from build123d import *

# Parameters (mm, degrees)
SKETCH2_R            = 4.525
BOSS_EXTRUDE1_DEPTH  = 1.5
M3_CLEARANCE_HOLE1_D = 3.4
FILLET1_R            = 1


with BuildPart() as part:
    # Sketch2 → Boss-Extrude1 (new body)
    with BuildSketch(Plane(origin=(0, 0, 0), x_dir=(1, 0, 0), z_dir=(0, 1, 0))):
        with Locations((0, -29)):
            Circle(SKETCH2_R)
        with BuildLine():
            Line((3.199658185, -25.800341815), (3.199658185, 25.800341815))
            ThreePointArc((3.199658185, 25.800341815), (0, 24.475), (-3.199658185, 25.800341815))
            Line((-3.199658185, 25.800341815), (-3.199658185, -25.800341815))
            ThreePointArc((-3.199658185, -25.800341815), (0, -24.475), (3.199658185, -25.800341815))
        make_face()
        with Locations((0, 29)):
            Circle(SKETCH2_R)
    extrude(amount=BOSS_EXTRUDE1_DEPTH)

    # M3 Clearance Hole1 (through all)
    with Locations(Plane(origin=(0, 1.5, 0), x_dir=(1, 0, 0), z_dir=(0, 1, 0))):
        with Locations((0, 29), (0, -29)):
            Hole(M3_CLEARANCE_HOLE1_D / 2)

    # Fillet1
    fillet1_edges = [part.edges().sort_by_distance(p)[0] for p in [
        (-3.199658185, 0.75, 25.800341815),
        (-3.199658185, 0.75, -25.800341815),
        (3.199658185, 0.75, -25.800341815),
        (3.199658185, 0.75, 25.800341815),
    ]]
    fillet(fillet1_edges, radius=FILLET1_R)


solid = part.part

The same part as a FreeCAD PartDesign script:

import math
import FreeCAD as App
import Part
import Sketcher
Q = App.Units.Quantity


def edges_at(feature, points):
    """Names of the edges that pass closest to the given points."""
    edges = feature.Shape.Edges
    near = lambda p: min(range(len(edges)), key=lambda i: edges[i].distToShape(Part.Vertex(*p))[0])
    return sorted({f"Edge{near(p) + 1}" for p in points})

doc = App.newDocument("Part")
body = doc.addObject("PartDesign::Body", "Body")

# Sketch on XZ plane
sketch1 = body.newObject("Sketcher::SketchObject", "Sketch")
sketch1.AttachmentSupport = (doc.getObject("XZ_Plane"), [""])
sketch1.MapMode = "FlatFace"
sketch1.addGeometry([
    Part.LineSegment(App.Vector(3.2, 25.8, 0), App.Vector(3.2, -25.8, 0)),
    Part.ArcOfCircle(Part.Circle(App.Vector(0, -29, 0), App.Vector(0, 0, 1), 4.5), math.radians(135), math.radians(405)),
    Part.LineSegment(App.Vector(-3.2, -25.8, 0), App.Vector(-3.2, 25.8, 0)),
    Part.ArcOfCircle(Part.Circle(App.Vector(0, 29, 0), App.Vector(0, 0, 1), 4.5), math.radians(-45), math.radians(225)),
], False)
sketch1.addConstraint([
    Sketcher.Constraint("Coincident", 0, 2, 1, 2),
    Sketcher.Constraint("Coincident", 1, 1, 2, 1),
    Sketcher.Constraint("Coincident", 2, 2, 3, 2),
    Sketcher.Constraint("Coincident", 3, 1, 0, 1),
    Sketcher.Constraint("Vertical", 0),
    Sketcher.Constraint("Vertical", 2),
    Sketcher.Constraint("Equal", 1, 3),
    Sketcher.Constraint("Symmetric", 1, 3, 3, 3, -1, 1),
    Sketcher.Constraint("Symmetric", 0, 2, 1, 1, -2),
    Sketcher.Constraint("DistanceY", 1, 3, -1, 1, Q("29 mm")),
    Sketcher.Constraint("Radius", 1, Q("4.525 mm")),
    Sketcher.Constraint("DistanceY", 0, 2, 0, 1, Q("51.600684 mm")),
])
pad1 = body.newObject("PartDesign::Pad", "Pad")
pad1.Profile = sketch1
pad1.Length = 1.5
pad1.Reversed = True

# Sketch on XZ plane
sketch2 = body.newObject("Sketcher::SketchObject", "Sketch001")
sketch2.AttachmentSupport = (doc.getObject("XZ_Plane"), [""])
sketch2.MapMode = "FlatFace"
sketch2.AttachmentOffset = App.Placement(App.Vector(0, 0, -1.5), App.Rotation())
sketch2.addGeometry([
    Part.Circle(App.Vector(0, -29, 0), App.Vector(0, 0, 1), 1.7),
    Part.Circle(App.Vector(0, 29, 0), App.Vector(0, 0, 1), 1.7),
], False)
sketch2.addConstraint([
    Sketcher.Constraint("Equal", 0, 1),
    Sketcher.Constraint("Symmetric", 0, 3, 1, 3, -1, 1),
    Sketcher.Constraint("PointOnObject", 0, 3, -2),
    Sketcher.Constraint("Diameter", 0, Q("3.4 mm")),
    Sketcher.Constraint("DistanceY", 0, 3, -1, 1, Q("29 mm")),
])
doc.recompute()
hole = body.newObject("PartDesign::Hole", "Hole")
hole.Profile = sketch2
hole.ThreadType = "None"
hole.Diameter = 3.4
hole.DepthType = "ThroughAll"
hole.Reversed = True
doc.recompute()

fillet = body.newObject("PartDesign::Fillet", "Fillet")
fillet.Base = (hole, edges_at(hole, [
    (-3.2, 0.75, 25.8),
    (-3.2, 0.75, -25.8),
    (3.2, 0.75, -25.8),
    (3.2, 0.75, 25.8),
]))
fillet.Radius = 1

doc.recompute()
